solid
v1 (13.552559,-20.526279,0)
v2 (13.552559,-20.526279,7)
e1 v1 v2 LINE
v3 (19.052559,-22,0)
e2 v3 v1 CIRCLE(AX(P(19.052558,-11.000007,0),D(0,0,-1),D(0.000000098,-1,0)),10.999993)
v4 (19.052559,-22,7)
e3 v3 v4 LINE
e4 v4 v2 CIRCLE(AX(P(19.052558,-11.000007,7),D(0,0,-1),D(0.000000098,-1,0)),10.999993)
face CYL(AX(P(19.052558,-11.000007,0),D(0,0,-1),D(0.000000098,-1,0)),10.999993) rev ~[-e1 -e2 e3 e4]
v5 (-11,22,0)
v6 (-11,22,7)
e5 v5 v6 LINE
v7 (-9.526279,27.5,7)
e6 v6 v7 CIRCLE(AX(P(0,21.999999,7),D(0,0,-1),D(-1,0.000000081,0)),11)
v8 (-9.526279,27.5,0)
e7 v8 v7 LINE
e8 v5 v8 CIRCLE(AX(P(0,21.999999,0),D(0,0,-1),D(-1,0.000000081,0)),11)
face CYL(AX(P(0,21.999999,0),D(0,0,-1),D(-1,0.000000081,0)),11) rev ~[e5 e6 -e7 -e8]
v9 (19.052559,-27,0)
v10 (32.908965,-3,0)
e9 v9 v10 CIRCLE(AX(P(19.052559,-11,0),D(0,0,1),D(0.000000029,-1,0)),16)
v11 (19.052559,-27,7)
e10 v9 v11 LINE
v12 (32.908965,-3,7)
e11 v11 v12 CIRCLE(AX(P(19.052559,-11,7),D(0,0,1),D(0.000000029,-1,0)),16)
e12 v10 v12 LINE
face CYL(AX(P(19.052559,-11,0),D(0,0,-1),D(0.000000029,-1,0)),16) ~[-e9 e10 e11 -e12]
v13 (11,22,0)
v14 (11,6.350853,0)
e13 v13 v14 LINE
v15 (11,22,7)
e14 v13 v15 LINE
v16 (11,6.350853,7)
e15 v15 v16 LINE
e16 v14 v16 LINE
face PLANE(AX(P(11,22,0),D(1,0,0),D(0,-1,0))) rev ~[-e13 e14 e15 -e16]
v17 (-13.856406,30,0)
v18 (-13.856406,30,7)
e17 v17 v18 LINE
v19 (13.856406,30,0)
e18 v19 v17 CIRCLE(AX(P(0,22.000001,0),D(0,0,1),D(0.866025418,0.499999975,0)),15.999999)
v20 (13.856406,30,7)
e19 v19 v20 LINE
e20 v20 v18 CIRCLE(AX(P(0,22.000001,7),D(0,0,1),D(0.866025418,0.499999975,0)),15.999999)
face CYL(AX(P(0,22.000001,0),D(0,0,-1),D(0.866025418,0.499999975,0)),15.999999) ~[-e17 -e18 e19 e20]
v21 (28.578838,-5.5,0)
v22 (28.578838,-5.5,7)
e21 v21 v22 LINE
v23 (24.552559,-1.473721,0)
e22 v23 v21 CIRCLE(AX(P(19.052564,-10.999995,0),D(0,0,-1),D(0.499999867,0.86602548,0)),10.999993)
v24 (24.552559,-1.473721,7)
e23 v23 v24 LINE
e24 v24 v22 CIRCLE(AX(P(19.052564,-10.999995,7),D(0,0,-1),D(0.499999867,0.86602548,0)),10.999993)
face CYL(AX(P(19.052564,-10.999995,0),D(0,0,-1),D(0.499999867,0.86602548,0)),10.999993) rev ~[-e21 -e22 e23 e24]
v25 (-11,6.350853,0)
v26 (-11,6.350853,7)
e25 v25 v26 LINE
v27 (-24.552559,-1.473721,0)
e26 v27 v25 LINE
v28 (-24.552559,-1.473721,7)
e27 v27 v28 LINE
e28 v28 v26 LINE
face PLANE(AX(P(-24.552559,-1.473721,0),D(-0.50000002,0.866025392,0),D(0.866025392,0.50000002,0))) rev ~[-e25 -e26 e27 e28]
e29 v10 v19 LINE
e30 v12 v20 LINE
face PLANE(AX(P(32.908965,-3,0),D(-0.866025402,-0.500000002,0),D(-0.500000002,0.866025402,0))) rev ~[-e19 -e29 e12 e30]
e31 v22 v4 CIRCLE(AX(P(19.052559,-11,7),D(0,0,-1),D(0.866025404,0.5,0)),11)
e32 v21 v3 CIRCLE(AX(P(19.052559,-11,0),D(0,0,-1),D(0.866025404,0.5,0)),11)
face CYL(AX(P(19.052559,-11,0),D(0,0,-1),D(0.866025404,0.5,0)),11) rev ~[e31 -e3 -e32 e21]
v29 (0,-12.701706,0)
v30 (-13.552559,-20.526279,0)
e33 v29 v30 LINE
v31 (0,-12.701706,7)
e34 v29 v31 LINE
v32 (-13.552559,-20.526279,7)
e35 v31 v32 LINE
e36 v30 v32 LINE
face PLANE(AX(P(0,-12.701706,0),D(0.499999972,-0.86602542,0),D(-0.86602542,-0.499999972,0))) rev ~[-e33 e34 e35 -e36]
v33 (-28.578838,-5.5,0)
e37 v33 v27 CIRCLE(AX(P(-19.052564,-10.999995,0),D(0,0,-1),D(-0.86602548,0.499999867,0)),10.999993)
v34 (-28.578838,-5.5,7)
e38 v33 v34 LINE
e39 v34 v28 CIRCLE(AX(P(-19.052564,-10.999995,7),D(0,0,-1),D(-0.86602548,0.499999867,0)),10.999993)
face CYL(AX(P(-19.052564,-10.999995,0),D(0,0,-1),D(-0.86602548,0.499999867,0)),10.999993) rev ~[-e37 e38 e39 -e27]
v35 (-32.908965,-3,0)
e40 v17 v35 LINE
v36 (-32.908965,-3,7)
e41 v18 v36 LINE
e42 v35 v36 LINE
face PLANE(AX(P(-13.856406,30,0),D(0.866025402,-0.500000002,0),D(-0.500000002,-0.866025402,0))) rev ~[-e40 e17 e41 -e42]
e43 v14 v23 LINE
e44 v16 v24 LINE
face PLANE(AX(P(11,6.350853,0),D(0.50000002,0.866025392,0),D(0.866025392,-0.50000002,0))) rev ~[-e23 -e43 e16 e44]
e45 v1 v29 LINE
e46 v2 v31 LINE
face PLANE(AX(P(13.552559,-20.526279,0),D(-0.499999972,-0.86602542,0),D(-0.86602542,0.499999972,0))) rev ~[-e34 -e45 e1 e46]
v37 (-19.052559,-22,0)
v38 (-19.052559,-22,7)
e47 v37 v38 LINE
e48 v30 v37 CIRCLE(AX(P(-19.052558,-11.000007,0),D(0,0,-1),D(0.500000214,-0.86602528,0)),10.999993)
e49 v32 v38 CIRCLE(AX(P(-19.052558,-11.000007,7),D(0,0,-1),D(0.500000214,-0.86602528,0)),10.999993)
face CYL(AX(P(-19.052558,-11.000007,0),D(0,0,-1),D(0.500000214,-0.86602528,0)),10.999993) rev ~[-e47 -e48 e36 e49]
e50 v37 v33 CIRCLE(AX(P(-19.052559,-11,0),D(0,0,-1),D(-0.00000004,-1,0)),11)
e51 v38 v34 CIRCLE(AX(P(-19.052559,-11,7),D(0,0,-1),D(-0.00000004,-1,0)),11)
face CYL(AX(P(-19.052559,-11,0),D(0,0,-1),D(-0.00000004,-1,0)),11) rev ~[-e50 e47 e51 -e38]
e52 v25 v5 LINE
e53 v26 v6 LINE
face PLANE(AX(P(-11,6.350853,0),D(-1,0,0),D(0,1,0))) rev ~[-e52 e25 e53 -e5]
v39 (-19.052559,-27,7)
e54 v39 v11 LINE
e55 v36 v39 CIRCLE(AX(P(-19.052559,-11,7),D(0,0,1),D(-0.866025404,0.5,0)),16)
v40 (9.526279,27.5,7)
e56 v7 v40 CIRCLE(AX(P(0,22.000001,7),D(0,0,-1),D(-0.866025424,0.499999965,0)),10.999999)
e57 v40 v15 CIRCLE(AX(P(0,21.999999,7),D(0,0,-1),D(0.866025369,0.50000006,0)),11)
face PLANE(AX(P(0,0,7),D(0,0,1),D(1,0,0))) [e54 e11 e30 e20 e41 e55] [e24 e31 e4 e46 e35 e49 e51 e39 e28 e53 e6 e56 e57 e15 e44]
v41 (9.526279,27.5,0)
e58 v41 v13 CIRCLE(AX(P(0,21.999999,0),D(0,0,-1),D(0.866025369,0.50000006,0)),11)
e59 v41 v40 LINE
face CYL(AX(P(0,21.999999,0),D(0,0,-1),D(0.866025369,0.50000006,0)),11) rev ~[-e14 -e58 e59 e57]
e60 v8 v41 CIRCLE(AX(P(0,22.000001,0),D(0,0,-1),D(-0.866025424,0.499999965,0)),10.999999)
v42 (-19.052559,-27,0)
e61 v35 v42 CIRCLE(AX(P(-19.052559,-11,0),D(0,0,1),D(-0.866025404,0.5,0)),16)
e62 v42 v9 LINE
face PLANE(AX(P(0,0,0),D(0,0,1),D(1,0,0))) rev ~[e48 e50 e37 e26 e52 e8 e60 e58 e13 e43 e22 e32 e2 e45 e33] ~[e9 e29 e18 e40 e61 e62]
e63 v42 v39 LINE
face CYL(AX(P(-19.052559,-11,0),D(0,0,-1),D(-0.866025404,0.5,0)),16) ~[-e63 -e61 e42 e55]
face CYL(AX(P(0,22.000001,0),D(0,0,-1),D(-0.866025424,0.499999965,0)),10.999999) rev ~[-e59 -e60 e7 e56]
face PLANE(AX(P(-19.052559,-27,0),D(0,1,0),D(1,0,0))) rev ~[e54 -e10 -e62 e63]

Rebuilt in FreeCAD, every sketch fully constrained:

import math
import FreeCAD as App
import Part
import Sketcher

doc = App.newDocument("Part")
body = doc.addObject("PartDesign::Body", "Body")

# Sketch on XY plane
sketch1 = body.newObject("Sketcher::SketchObject", "Sketch")
sketch1.AttachmentSupport = (doc.getObject("XY_Plane"), [""])
sketch1.MapMode = "FlatFace"
sketch1.addGeometry(Part.LineSegment(App.Vector(32.908965, -3, 0), App.Vector(13.856406, 30, 0)), False)
sketch1.addGeometry(Part.ArcOfCircle(Part.Circle(App.Vector(0, 22.000001, 0), App.Vector(0, 0, 1), 15.999999), math.radians(29.999998), math.radians(150.000002)), False)
sketch1.addGeometry(Part.LineSegment(App.Vector(-13.856406, 30, 0), App.Vector(-32.908965, -3, 0)), False)
sketch1.addGeometry(Part.ArcOfCircle(Part.Circle(App.Vector(-19.052559, -11, 0), App.Vector(0, 0, 1), 16), math.radians(150), math.radians(269.999998)), False)
sketch1.addGeometry(Part.LineSegment(App.Vector(-19.052559, -27, 0), App.Vector(19.052559, -27, 0)), False)
sketch1.addGeometry(Part.ArcOfCircle(Part.Circle(App.Vector(19.052559, -11, 0), App.Vector(0, 0, 1), 16), math.radians(-89.999998), math.radians(30)), False)
sketch1.addGeometry(Part.ArcOfCircle(Part.Circle(App.Vector(-19.052559, -11, 0), App.Vector(0, 0, 1), 11), math.radians(150), math.radians(269.999998)), False)
sketch1.addGeometry(Part.ArcOfCircle(Part.Circle(App.Vector(-19.052564, -10.999995, 0), App.Vector(0, 0, 1), 10.999993), math.radians(119.999991), math.radians(150.000009)), False)
sketch1.addGeometry(Part.LineSegment(App.Vector(-24.552559, -1.473721, 0), App.Vector(-11, 6.350853, 0)), False)
sketch1.addGeometry(Part.LineSegment(App.Vector(-11, 6.350853, 0), App.Vector(-11, 22, 0)), False)
sketch1.addGeometry(Part.ArcOfCircle(Part.Circle(App.Vector(0, 21.999999, 0), App.Vector(0, 0, 1), 11), math.radians(149.999996), math.radians(179.999995)), False)
sketch1.addGeometry(Part.ArcOfCircle(Part.Circle(App.Vector(0, 22.000001, 0), App.Vector(0, 0, 1), 10.999999), math.radians(29.999998), math.radians(150.000002)), False)
sketch1.addGeometry(Part.ArcOfCircle(Part.Circle(App.Vector(0, 21.999999, 0), App.Vector(0, 0, 1), 11), math.radians(0.000005), math.radians(30.000004)), False)
sketch1.addGeometry(Part.LineSegment(App.Vector(11, 22, 0), App.Vector(11, 6.350853, 0)), False)
sketch1.addGeometry(Part.LineSegment(App.Vector(11, 6.350853, 0), App.Vector(24.552559, -1.473721, 0)), False)
sketch1.addGeometry(Part.ArcOfCircle(Part.Circle(App.Vector(19.052564, -10.999995, 0), App.Vector(0, 0, 1), 10.999993), math.radians(29.999991), math.radians(60.000009)), False)
sketch1.addGeometry(Part.ArcOfCircle(Part.Circle(App.Vector(19.052559, -11, 0), App.Vector(0, 0, 1), 11), math.radians(-89.999998), math.radians(30)), False)
sketch1.addGeometry(Part.ArcOfCircle(Part.Circle(App.Vector(19.052558, -11.000007, 0), App.Vector(0, 0, 1), 10.999993), math.radians(-120.000014), math.radians(-89.999994)), False)
sketch1.addGeometry(Part.LineSegment(App.Vector(13.552559, -20.526279, 0), App.Vector(0, -12.701706, 0)), False)
sketch1.addGeometry(Part.LineSegment(App.Vector(0, -12.701706, 0), App.Vector(-13.552559, -20.526279, 0)), False)
sketch1.addGeometry(Part.ArcOfCircle(Part.Circle(App.Vector(-19.052558, -11.000007, 0), App.Vector(0, 0, 1), 10.999993), math.radians(-90.000006), math.radians(-59.999986)), False)
sketch1.addConstraint(Sketcher.Constraint("Tangent", 0, 2, 1, 1))
sketch1.addConstraint(Sketcher.Constraint("Tangent", 1, 2, 2, 1))
sketch1.addConstraint(Sketcher.Constraint("Tangent", 2, 2, 3, 1))
sketch1.addConstraint(Sketcher.Constraint("Tangent", 3, 2, 4, 1))
sketch1.addConstraint(Sketcher.Constraint("Tangent", 4, 2, 5, 1))
sketch1.addConstraint(Sketcher.Constraint("Tangent", 5, 2, 0, 1))
sketch1.addConstraint(Sketcher.Constraint("Tangent", 6, 1, 7, 2))
sketch1.addConstraint(Sketcher.Constraint("Tangent", 7, 1, 8, 1))
sketch1.addConstraint(Sketcher.Constraint("Coincident", 8, 2, 9, 1))
sketch1.addConstraint(Sketcher.Constraint("Tangent", 9, 2, 10, 2))
sketch1.addConstraint(Sketcher.Constraint("Tangent", 10, 1, 11, 2))
sketch1.addConstraint(Sketcher.Constraint("Tangent", 11, 1, 12, 2))
sketch1.addConstraint(Sketcher.Constraint("Tangent", 12, 1, 13, 1))
sketch1.addConstraint(Sketcher.Constraint("Coincident", 13, 2, 14, 1))
sketch1.addConstraint(Sketcher.Constraint("Tangent", 14, 2, 15, 2))
sketch1.addConstraint(Sketcher.Constraint("Tangent", 15, 1, 16, 2))
sketch1.addConstraint(Sketcher.Constraint("Tangent", 16, 1, 17, 2))
sketch1.addConstraint(Sketcher.Constraint("Tangent", 17, 1, 18, 1))
sketch1.addConstraint(Sketcher.Constraint("Coincident", 18, 2, 19, 1))
sketch1.addConstraint(Sketcher.Constraint("Tangent", 19, 2, 20, 2))
sketch1.addConstraint(Sketcher.Constraint("Tangent", 20, 1, 6, 2))
sketch1.addConstraint(Sketcher.Constraint("Horizontal", 4))
sketch1.addConstraint(Sketcher.Constraint("Vertical", 9))
sketch1.addConstraint(Sketcher.Constraint("Vertical", 13))
sketch1.addConstraint(Sketcher.Constraint("Coincident", 6, 3, 3, 3))
sketch1.addConstraint(Sketcher.Constraint("Coincident", 10, 3, 1, 3))
sketch1.addConstraint(Sketcher.Constraint("Coincident", 12, 3, 1, 3))
sketch1.addConstraint(Sketcher.Constraint("Coincident", 15, 3, 5, 3))
sketch1.addConstraint(Sketcher.Constraint("Coincident", 17, 3, 5, 3))
sketch1.addConstraint(Sketcher.Constraint("Equal", 1, 3))
sketch1.addConstraint(Sketcher.Constraint("Equal", 3, 5))
sketch1.addConstraint(Sketcher.Constraint("Equal", 6, 10))
sketch1.addConstraint(Sketcher.Constraint("Equal", 7, 15))
sketch1.addConstraint(Sketcher.Constraint("Equal", 12, 16))
sketch1.addConstraint(Sketcher.Constraint("Equal", 17, 20))
sketch1.addConstraint(Sketcher.Constraint("Symmetric", 0, 2, 1, 2, -2))
sketch1.addConstraint(Sketcher.Constraint("PointOnObject", 18, 2, -2))
sketch1.addConstraint(Sketcher.Constraint("Perpendicular", 0, 8))
sketch1.addConstraint(Sketcher.Constraint("Perpendicular", 2, 14))
sketch1.addConstraint(Sketcher.Constraint("Parallel", 14, 18))
sketch1.addConstraint(Sketcher.Constraint("Horizontal", 10, 1, 11, 1))
sketch1.addConstraint(Sketcher.Constraint("Horizontal", 6, 1, 15, 1))
sketch1.addConstraint(Sketcher.Constraint("Vertical", 4, 2, 16, 1))
sketch1.addConstraint(Sketcher.Constraint("Vertical", 3, 2, 20, 1))
sketch1.addConstraint(Sketcher.Constraint("Equal", 14, 18))
sketch1.addConstraint(Sketcher.Constraint("Radius", 1, 15.999999))
sketch1.addConstraint(Sketcher.Constraint("Radius", 6, 11.0))
sketch1.addConstraint(Sketcher.Constraint("DistanceY", -1, 1, 1, 3, 22.000001))
sketch1.addConstraint(Sketcher.Constraint("DistanceY", 3, 3, -1, 1, 11.0))
sketch1.addConstraint(Sketcher.Constraint("DistanceY", 6, 1, -1, 1, 5.5))
sketch1.addConstraint(Sketcher.Constraint("DistanceY", -1, 1, 10, 1, 27.5))
pad1 = body.newObject("PartDesign::Pad", "Pad")
pad1.Profile = sketch1
pad1.Length = 7

doc.recompute()
